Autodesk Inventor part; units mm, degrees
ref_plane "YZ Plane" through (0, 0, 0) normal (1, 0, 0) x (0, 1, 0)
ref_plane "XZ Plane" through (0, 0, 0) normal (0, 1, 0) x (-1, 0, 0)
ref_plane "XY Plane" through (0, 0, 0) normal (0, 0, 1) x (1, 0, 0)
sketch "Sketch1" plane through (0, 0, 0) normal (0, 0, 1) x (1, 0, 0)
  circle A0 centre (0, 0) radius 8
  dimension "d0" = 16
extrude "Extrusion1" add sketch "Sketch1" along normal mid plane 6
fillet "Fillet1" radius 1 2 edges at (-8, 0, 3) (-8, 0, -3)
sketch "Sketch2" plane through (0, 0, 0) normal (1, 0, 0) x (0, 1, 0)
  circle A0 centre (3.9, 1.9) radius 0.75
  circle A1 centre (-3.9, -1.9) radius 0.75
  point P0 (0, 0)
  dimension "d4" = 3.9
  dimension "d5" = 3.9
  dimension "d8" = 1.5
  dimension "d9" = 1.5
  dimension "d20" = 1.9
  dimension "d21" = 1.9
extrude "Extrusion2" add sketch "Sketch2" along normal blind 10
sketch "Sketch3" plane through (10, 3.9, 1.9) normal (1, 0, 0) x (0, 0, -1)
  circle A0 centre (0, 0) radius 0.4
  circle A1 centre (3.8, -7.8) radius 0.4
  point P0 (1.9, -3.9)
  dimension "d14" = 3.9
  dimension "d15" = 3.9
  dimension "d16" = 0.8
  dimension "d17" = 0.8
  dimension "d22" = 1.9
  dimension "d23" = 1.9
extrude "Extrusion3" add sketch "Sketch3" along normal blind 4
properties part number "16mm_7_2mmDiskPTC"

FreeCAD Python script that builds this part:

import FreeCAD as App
import Part
import Sketcher


def edges_at(feature, points):
    """Names of the edges that pass closest to the given points."""
    edges = feature.Shape.Edges
    near = lambda p: min(range(len(edges)), key=lambda i: edges[i].distToShape(Part.Vertex(*p))[0])
    return sorted({f"Edge{near(p) + 1}" for p in points})

doc = App.newDocument("Part")
body = doc.addObject("PartDesign::Body", "Body")

sketch1 = body.newObject("Sketcher::SketchObject", "Sketch")
sketch1.AttachmentSupport = (doc.getObject("XY_Plane"), [""])
sketch1.MapMode = "FlatFace"
sketch1.addGeometry(Part.Circle(App.Vector(0, 0, 0), App.Vector(0, 0, 1), 8), False)
sketch1.addConstraint([
    Sketcher.Constraint("Coincident", 0, 3, -1, 1),
    Sketcher.Constraint("Diameter", 0, 16.0),
])
pad1 = body.newObject("PartDesign::Pad", "Pad")
pad1.Profile = sketch1
pad1.Length = 6
pad1.Midplane = True
doc.recompute()

fillet = body.newObject("PartDesign::Fillet", "Fillet")
fillet.Base = (pad1, edges_at(pad1, [(-8, 0, 3), (-8, 0, -3)]))
fillet.Radius = 1

sketch2 = body.newObject("Sketcher::SketchObject", "Sketch001")
sketch2.AttachmentSupport = (doc.getObject("YZ_Plane"), [""])
sketch2.MapMode = "FlatFace"
sketch2.addGeometry([
    Part.Circle(App.Vector(3.9, 1.9, 0), App.Vector(0, 0, 1), 0.8),
    Part.Circle(App.Vector(-3.9, -1.9, 0), App.Vector(0, 0, 1), 0.8),
], False)
sketch2.addConstraint([
    Sketcher.Constraint("Equal", 0, 1),
    Sketcher.Constraint("Symmetric", 0, 3, 1, 3, -1, 1),
    Sketcher.Constraint("Diameter", 0, 1.5),
    Sketcher.Constraint("DistanceX", -1, 1, 0, 3, 3.9),
    Sketcher.Constraint("DistanceY", -1, 1, 0, 3, 1.9),
])
pad2 = body.newObject("PartDesign::Pad", "Pad001")
pad2.Profile = sketch2
pad2.Length = 10

sketch3 = body.newObject("Sketcher::SketchObject", "Sketch002")
sketch3.AttachmentSupport = (doc.getObject("YZ_Plane"), [""])
sketch3.MapMode = "FlatFace"
sketch3.AttachmentOffset = App.Placement(App.Vector(0, 0, 10), App.Rotation())
sketch3.addGeometry([
    Part.Circle(App.Vector(3.9, 1.9, 0), App.Vector(0, 0, 1), 0.4),
    Part.Circle(App.Vector(-3.9, -1.9, 0), App.Vector(0, 0, 1), 0.4),
], False)
sketch3.addConstraint([
    Sketcher.Constraint("Equal", 0, 1),
    Sketcher.Constraint("Symmetric", 0, 3, 1, 3, -1, 1),
    Sketcher.Constraint("Diameter", 0, 0.8),
    Sketcher.Constraint("DistanceX", -1, 1, 0, 3, 3.9),
    Sketcher.Constraint("DistanceY", -1, 1, 0, 3, 1.9),
])
pad3 = body.newObject("PartDesign::Pad", "Pad002")
pad3.Profile = sketch3
pad3.Length = 4

doc.recompute()
